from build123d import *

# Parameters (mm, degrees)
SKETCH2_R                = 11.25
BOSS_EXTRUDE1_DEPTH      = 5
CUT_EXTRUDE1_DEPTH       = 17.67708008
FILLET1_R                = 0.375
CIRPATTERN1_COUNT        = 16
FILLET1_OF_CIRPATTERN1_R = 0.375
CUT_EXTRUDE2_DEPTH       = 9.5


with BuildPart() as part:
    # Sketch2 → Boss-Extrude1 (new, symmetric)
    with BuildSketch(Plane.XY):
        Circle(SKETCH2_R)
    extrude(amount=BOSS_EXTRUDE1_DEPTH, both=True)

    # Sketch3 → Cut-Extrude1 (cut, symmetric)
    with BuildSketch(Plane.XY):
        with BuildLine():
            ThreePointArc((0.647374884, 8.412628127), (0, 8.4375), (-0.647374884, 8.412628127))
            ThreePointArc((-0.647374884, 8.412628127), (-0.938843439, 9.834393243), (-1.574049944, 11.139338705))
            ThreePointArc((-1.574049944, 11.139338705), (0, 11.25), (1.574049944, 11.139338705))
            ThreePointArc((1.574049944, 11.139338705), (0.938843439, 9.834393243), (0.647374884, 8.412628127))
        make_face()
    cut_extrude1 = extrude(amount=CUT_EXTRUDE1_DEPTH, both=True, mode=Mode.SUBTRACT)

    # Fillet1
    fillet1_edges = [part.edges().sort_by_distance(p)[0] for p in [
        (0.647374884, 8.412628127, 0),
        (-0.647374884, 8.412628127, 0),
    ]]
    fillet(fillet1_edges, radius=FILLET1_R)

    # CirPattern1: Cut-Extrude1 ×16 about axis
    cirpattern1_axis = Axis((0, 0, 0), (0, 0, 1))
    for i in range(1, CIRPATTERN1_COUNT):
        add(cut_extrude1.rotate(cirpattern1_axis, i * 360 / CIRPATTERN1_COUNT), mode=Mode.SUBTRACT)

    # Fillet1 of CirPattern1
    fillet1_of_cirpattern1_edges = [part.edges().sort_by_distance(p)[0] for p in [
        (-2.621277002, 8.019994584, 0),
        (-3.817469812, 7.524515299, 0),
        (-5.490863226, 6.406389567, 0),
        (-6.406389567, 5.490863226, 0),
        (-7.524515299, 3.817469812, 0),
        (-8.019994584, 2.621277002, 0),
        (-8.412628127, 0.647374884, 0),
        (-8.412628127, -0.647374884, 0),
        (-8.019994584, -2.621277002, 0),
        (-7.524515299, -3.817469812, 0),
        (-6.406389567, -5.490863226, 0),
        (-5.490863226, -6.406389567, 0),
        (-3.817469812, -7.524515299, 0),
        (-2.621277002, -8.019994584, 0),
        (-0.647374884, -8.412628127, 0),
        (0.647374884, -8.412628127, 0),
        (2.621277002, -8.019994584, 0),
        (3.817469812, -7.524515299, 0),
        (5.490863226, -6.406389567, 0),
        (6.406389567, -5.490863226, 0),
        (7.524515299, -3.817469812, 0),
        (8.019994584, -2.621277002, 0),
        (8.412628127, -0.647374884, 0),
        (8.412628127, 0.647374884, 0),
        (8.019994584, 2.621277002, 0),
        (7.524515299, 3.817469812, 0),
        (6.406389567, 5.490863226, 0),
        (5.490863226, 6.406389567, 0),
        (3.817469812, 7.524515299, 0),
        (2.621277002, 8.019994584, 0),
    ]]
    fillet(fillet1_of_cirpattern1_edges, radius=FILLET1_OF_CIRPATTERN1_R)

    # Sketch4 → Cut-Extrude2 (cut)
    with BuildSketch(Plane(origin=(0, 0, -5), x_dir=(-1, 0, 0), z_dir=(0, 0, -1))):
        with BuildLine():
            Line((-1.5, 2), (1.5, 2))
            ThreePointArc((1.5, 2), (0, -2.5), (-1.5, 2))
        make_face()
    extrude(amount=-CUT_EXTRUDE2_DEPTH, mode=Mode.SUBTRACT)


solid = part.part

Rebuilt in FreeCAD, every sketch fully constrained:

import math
import FreeCAD as App
import Part
import Sketcher


def edges_at(feature, points):
    """Names of the edges that pass closest to the given points."""
    edges = feature.Shape.Edges
    near = lambda p: min(range(len(edges)), key=lambda i: edges[i].distToShape(Part.Vertex(*p))[0])
    return sorted({f"Edge{near(p) + 1}" for p in points})

doc = App.newDocument("Part")
body = doc.addObject("PartDesign::Body", "Body")

sketch1 = body.newObject("Sketcher::SketchObject", "Sketch")
sketch1.AttachmentSupport = (doc.getObject("XY_Plane"), [""])
sketch1.MapMode = "FlatFace"
sketch1.addGeometry(Part.Circle(App.Vector(0, 0, 0), App.Vector(0, 0, 1), 11), False)
sketch1.addConstraint(Sketcher.Constraint("Coincident", 0, 3, -1, 1))
sketch1.addConstraint(Sketcher.Constraint("Diameter", 0, 22.5))
pad1 = body.newObject("PartDesign::Pad", "Pad")
pad1.Profile = sketch1
pad1.Length = 10
pad1.Midplane = True

sketch2 = body.newObject("Sketcher::SketchObject", "Sketch001")
sketch2.AttachmentSupport = (doc.getObject("XY_Plane"), [""])
sketch2.MapMode = "FlatFace"
sketch2.addGeometry(Part.ArcOfCircle(Part.Circle(App.Vector(0, 0, 0), App.Vector(0, 0, 1), 8.4), math.radians(85.6), math.radians(94.4)), False)
sketch2.addGeometry(Part.ArcOfCircle(Part.Circle(App.Vector(6.4, 8, 0), App.Vector(0, 0, 1), 5.8), math.radians(147), math.radians(176)), False)
sketch2.addGeometry(Part.ArcOfCircle(Part.Circle(App.Vector(0, 0, 0), App.Vector(0, 0, 1), 11.3), math.radians(81.96), math.radians(98.04)), False)
sketch2.addGeometry(Part.ArcOfCircle(Part.Circle(App.Vector(-6.4, 8, 0), App.Vector(0, 0, 1), 5.8), math.radians(4), math.radians(33)), False)
sketch2.addConstraint(Sketcher.Constraint("Coincident", 0, 1, 1, 2))
sketch2.addConstraint(Sketcher.Constraint("Coincident", 1, 1, 2, 1))
sketch2.addConstraint(Sketcher.Constraint("Coincident", 2, 2, 3, 2))
sketch2.addConstraint(Sketcher.Constraint("Coincident", 3, 1, 0, 2))
sketch2.addConstraint(Sketcher.Constraint("Coincident", 0, 3, -1, 1))
sketch2.addConstraint(Sketcher.Constraint("Coincident", 2, 3, -1, 1))
sketch2.addConstraint(Sketcher.Constraint("Equal", 1, 3))
sketch2.addConstraint(Sketcher.Constraint("Symmetric", 1, 3, 3, 3, -2))
sketch2.addConstraint(Sketcher.Constraint("Radius", 2, 11.25))
sketch2.addConstraint(Sketcher.Constraint("Radius", 0, 8.4375))
sketch2.addConstraint(Sketcher.Constraint("Radius", 1, 5.801932))
sketch2.addConstraint(Sketcher.Constraint("DistanceX", 2, 2, 1, 1, 3.1481))
sketch2.addConstraint(Sketcher.Constraint("DistanceY", -1, 1, 1, 3, 7.96747))
pocket1 = body.newObject("PartDesign::Pocket", "Pocket")
pocket1.Profile = sketch2
pocket1.Length = 35.35416
pocket1.Midplane = True
doc.recompute()

fillet = body.newObject("PartDesign::Fillet", "Fillet")
fillet.Base = (pocket1, edges_at(pocket1, [(0.647, 8.413, 0), (-0.647, 8.413, 0)]))
fillet.Radius = 0.375
doc.recompute()

polarpattern = body.newObject("PartDesign::PolarPattern", "PolarPattern")
polarpattern.Originals = [pocket1]
polarpattern.Axis = (doc.getObject("Z_Axis"), [""])
polarpattern.Angle = 360
polarpattern.Occurrences = 16
body.Tip = polarpattern
doc.recompute()

fillet2 = body.newObject("PartDesign::Fillet", "Fillet001")
fillet2.Base = (polarpattern, edges_at(polarpattern, [
    (-2.621, 8.02, 0),
    (-3.817, 7.525, 0),
    (-5.491, 6.406, 0),
    (-6.406, 5.491, 0),
    (-7.525, 3.817, 0),
    (-8.02, 2.621, 0),
    (-8.413, 0.647, 0),
    (-8.413, -0.647, 0),
    (-8.02, -2.621, 0),
    (-7.525, -3.817, 0),
    (-6.406, -5.491, 0),
    (-5.491, -6.406, 0),
    (-3.817, -7.525, 0),
    (-2.621, -8.02, 0),
    (-0.647, -8.413, 0),
    (0.647, -8.413, 0),
    (2.621, -8.02, 0),
    (3.817, -7.525, 0),
    (5.491, -6.406, 0),
    (6.406, -5.491, 0),
    (7.525, -3.817, 0),
    (8.02, -2.621, 0),
    (8.413, -0.647, 0),
    (8.413, 0.647, 0),
    (8.02, 2.621, 0),
    (7.525, 3.817, 0),
    (6.406, 5.491, 0),
    (5.491, 6.406, 0),
    (3.817, 7.525, 0),
    (2.621, 8.02, 0),
]))
fillet2.Radius = 0.375

sketch3 = body.newObject("Sketcher::SketchObject", "Sketch002")
sketch3.AttachmentSupport = (doc.getObject("XY_Plane"), [""])
sketch3.MapMode = "FlatFace"
sketch3.AttachmentOffset = App.Placement(App.Vector(0, 0, -5), App.Rotation())
sketch3.addGeometry(Part.LineSegment(App.Vector(-1.5, 2, 0), App.Vector(1.5, 2, 0)), False)
sketch3.addGeometry(Part.ArcOfCircle(Part.Circle(App.Vector(0, 0, 0), App.Vector(0, 0, 1), 2.5), math.radians(127), math.radians(413)), False)
sketch3.addConstraint(Sketcher.Constraint("Coincident", 0, 1, 1, 1))
sketch3.addConstraint(Sketcher.Constraint("Coincident", 1, 2, 0, 2))
sketch3.addConstraint(Sketcher.Constraint("Horizontal", 0))
sketch3.addConstraint(Sketcher.Constraint("Coincident", 1, 3, -1, 1))
sketch3.addConstraint(Sketcher.Constraint("Radius", 1, 2.5))
sketch3.addConstraint(Sketcher.Constraint("DistanceX", 0, 1, 0, 2, 3.0))
pocket2 = body.newObject("PartDesign::Pocket", "Pocket001")
pocket2.Profile = sketch3
pocket2.Length = 9.5
pocket2.Reversed = True

doc.recompute()
